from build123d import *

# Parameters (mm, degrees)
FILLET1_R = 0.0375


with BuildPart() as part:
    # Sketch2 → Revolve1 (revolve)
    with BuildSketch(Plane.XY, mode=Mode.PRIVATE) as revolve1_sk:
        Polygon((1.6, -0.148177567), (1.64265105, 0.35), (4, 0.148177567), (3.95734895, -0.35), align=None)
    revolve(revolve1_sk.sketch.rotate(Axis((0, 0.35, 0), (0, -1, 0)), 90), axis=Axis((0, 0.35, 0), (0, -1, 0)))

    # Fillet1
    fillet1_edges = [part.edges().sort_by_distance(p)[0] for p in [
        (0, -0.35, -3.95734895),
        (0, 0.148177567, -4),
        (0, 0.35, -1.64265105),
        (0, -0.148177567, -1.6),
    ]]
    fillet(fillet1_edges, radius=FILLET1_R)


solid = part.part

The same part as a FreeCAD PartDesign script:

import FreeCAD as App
import Part
import Sketcher
from FreeCAD import Vector
Q = App.Units.Quantity


def edges_at(feature, points):
    """Names of the edges that pass closest to the given points."""
    edges = feature.Shape.Edges
    near = lambda p: min(range(len(edges)), key=lambda i: edges[i].distToShape(Part.Vertex(*p))[0])
    return sorted({f"Edge{near(p) + 1}" for p in points})

doc = App.newDocument("Part")
body = doc.addObject("PartDesign::Body", "Body")

# Sketch on XY plane
sketch1 = body.newObject("Sketcher::SketchObject", "Sketch")
sketch1.AttachmentSupport = (doc.getObject("XY_Plane"), [""])
sketch1.MapMode = "FlatFace"
sketch1.addGeometry(Part.LineSegment(Vector(1.6, 0.3, 0), Vector(1.6, -0.1, 0)), False)
sketch1.addGeometry(Part.LineSegment(Vector(1.6, -0.1, 0), Vector(4, -0.3, 0)), False)
sketch1.addGeometry(Part.LineSegment(Vector(4, -0.3, 0), Vector(4, 0.1, 0)), False)
sketch1.addGeometry(Part.LineSegment(Vector(4, 0.1, 0), Vector(1.6, 0.3, 0)), False)
sketch1.addConstraint(Sketcher.Constraint("Coincident", 0, 2, 1, 1))
sketch1.addConstraint(Sketcher.Constraint("Coincident", 1, 2, 2, 1))
sketch1.addConstraint(Sketcher.Constraint("Coincident", 2, 2, 3, 1))
sketch1.addConstraint(Sketcher.Constraint("Coincident", 3, 2, 0, 1))
sketch1.addConstraint(Sketcher.Constraint("Perpendicular", 0, 1))
sketch1.addConstraint(Sketcher.Constraint("Perpendicular", 1, 2))
sketch1.addConstraint(Sketcher.Constraint("Perpendicular", 2, 3))
sketch1.addConstraint(Sketcher.Constraint("DistanceX", -1, 1, 2, 2, Q("4 mm")))
sketch1.addConstraint(Sketcher.Constraint("Distance", 0, Q("0.5 mm")))
sketch1.addConstraint(Sketcher.Constraint("DistanceX", -1, 1, 0, 2, Q("1.6 mm")))
sketch1.addConstraint(Sketcher.Constraint("DistanceY", 1, 2, 3, 2, Q("0.7 mm")))
sketch1.addConstraint(Sketcher.Constraint("DistanceY", 1, 2, -1, 1, Q("0.35 mm")))
revolution = body.newObject("PartDesign::Revolution", "Revolution")
revolution.Profile = sketch1
revolution.ReferenceAxis = (sketch1, ["V_Axis"])
revolution.Angle = 360
doc.recompute()

fillet = body.newObject("PartDesign::Fillet", "Fillet")
fillet.Base = (revolution, edges_at(revolution, [
    (0, -0.35, -3.957),
    (0, 0.148, -4),
    (0, 0.35, -1.643),
    (0, -0.148, -1.6),
]))
fillet.Radius = 0.0375

doc.recompute()
